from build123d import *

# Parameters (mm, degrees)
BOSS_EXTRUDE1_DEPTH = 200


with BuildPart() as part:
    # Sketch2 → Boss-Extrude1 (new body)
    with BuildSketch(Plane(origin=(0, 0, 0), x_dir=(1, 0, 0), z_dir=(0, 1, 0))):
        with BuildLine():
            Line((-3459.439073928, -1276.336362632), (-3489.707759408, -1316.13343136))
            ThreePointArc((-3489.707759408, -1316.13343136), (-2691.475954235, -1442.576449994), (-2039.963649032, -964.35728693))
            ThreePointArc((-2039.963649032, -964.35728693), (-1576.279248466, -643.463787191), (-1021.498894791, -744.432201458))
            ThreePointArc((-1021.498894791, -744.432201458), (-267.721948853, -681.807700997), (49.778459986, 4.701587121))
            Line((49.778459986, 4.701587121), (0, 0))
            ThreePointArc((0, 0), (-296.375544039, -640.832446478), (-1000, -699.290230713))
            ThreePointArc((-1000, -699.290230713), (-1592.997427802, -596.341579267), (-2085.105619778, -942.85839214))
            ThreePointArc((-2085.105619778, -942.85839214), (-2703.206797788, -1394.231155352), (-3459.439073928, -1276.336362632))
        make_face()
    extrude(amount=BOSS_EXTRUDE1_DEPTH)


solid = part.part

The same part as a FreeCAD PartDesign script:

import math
import FreeCAD as App
import Part
import Sketcher
Q = App.Units.Quantity

doc = App.newDocument("Part")
body = doc.addObject("PartDesign::Body", "Body")

sketch1 = doc.addObject("Sketcher::SketchObject", "Sketch")
body.addObject(sketch1)
sketch1.AttachmentSupport = (doc.XZ_Plane, [""])
sketch1.MapMode = "FlatFace"
sketch1.addGeometry([
    Part.LineSegment(App.Vector(-3459.439074, 1276.336363, 0), App.Vector(-3489.707759, 1316.133431, 0)),
    Part.ArcOfCircle(Part.Circle(App.Vector(-2939.011332, 422.43065, 0), App.Vector(0, 0, 1), 1049.748168), math.radians(31.08067), math.radians(121.641226)),
    Part.ArcOfCircle(Part.Circle(App.Vector(-1420.768729, 1363.627121, 0), App.Vector(0, 0, 1), 736.762343), math.radians(-147.185231), math.radians(-57.185231)),
    Part.ArcOfCircle(Part.Circle(App.Vector(-698.376927, 65.961863, 0), App.Vector(0, 0, 1), 751.485067), math.radians(-5.395593), math.radians(115.466157)),
    Part.LineSegment(App.Vector(49.77846, -4.701587, 0), App.Vector(0, 0, 0)),
    Part.ArcOfCircle(Part.Circle(App.Vector(-698.376927, 65.961863, 0), App.Vector(0, 0, 1), 701.485067), math.radians(-5.395593), math.radians(115.466157)),
    Part.ArcOfCircle(Part.Circle(App.Vector(-1420.768729, 1363.627121, 0), App.Vector(0, 0, 1), 786.377662), math.radians(-147.6512), math.radians(-57.6512)),
    Part.ArcOfCircle(Part.Circle(App.Vector(-2939.011332, 422.43065, 0), App.Vector(0, 0, 1), 1000), math.radians(31.360948), math.radians(121.360948)),
], False)
sketch1.addConstraint([
    Sketcher.Constraint("Coincident", 0, 2, 1, 2),
    Sketcher.Constraint("Coincident", 1, 1, 2, 1),
    Sketcher.Constraint("Coincident", 2, 2, 3, 2),
    Sketcher.Constraint("Coincident", 3, 1, 4, 1),
    Sketcher.Constraint("Coincident", 4, 2, 5, 1),
    Sketcher.Constraint("Coincident", 5, 2, 6, 2),
    Sketcher.Constraint("Coincident", 6, 1, 7, 1),
    Sketcher.Constraint("Coincident", 7, 2, 0, 1),
    Sketcher.Constraint("Coincident", 4, 2, -1, 1),
    Sketcher.Constraint("Coincident", 5, 3, 3, 3),
    Sketcher.Constraint("Coincident", 6, 3, 2, 3),
    Sketcher.Constraint("Coincident", 7, 3, 1, 3),
    Sketcher.Constraint("Equal", 0, 4),
    Sketcher.Constraint("Radius", 7, 1000.0),
    Sketcher.Constraint("Distance", 0, 50.0),
    Sketcher.Constraint("DistanceX", 5, 2, -1, 1, 1000.0),
    Sketcher.Constraint("Radius", 1, 1049.748168),
    Sketcher.Constraint("Radius", 2, 736.762343),
    Sketcher.Constraint("Radius", 3, 751.485067),
    Sketcher.Constraint("Radius", 6, 786.377662),
    Sketcher.Constraint("DistanceY", -1, 1, 1, 3, 422.43065),
    Sketcher.Constraint("DistanceX", 2, 3, -1, 1, 1420.768729),
    Sketcher.Constraint("DistanceY", -1, 1, 2, 3, 1363.627121),
    Sketcher.Constraint("DistanceX", 0, 2, -1, 1, 3489.707759),
    Sketcher.Constraint("DistanceY", -1, 1, 0, 2, 1316.133431),
    Sketcher.Constraint("Angle", 4, Q("174.604407 deg")),
])
pad1 = doc.addObject("PartDesign::Pad", "Pad")
body.addObject(pad1)
pad1.Profile = sketch1
pad1.Length = 200
pad1.Reversed = True

doc.recompute()
